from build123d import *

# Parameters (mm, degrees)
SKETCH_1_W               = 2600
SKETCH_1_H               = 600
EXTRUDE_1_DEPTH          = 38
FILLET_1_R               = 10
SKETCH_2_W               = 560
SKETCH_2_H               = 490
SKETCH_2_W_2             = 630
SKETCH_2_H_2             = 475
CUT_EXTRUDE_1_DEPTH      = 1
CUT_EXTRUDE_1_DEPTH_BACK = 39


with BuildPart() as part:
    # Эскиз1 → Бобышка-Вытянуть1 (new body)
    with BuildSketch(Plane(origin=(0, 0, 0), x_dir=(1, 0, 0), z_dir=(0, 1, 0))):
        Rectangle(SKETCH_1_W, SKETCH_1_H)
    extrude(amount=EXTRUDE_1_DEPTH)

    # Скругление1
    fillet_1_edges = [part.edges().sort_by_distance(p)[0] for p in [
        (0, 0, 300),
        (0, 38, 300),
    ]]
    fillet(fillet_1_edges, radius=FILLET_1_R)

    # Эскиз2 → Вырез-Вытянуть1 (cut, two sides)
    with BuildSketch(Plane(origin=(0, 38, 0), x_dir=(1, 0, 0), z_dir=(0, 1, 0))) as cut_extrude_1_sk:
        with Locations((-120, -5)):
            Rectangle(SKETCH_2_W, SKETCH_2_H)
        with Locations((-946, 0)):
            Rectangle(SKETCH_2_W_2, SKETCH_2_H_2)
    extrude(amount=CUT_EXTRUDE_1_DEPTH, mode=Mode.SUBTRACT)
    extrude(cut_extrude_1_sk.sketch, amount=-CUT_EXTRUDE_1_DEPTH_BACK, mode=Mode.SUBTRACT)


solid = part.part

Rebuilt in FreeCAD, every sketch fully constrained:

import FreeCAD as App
import Part
import Sketcher
Q = App.Units.Quantity


def edges_at(feature, points):
    """Names of the edges that pass closest to the given points."""
    edges = feature.Shape.Edges
    near = lambda p: min(range(len(edges)), key=lambda i: edges[i].distToShape(Part.Vertex(*p))[0])
    return sorted({f"Edge{near(p) + 1}" for p in points})


def add_polygon(sketch, points):
    """Adds a closed chain of lines whose ends are joined by coincident constraints."""
    first, n = sketch.GeometryCount, len(points)
    for a, b in zip(points, points[1:] + points[:1]):
        sketch.addGeometry(Part.LineSegment(App.Vector(*a, 0), App.Vector(*b, 0)), False)
    for i in range(n):
        sketch.addConstraint(Sketcher.Constraint("Coincident", first + i, 2, first + (i + 1) % n, 1))

doc = App.newDocument("Part")
body = doc.addObject("PartDesign::Body", "Body")

sketch1 = body.newObject("Sketcher::SketchObject", "Sketch")
sketch1.AttachmentSupport = (doc.getObject("XZ_Plane"), [""])
sketch1.MapMode = "FlatFace"
add_polygon(sketch1, [(-1300, -300), (-1300, 300), (1300, 300), (1300, -300)])
sketch1.addConstraint(Sketcher.Constraint("Vertical", 0))
sketch1.addConstraint(Sketcher.Constraint("Horizontal", 1))
sketch1.addConstraint(Sketcher.Constraint("Vertical", 2))
sketch1.addConstraint(Sketcher.Constraint("Horizontal", 3))
sketch1.addConstraint(Sketcher.Constraint("Symmetric", 0, 2, 2, 2, -1, 1))
sketch1.addConstraint(Sketcher.Constraint("DistanceX", 1, 1, 1, 2, Q("2600 mm")))
sketch1.addConstraint(Sketcher.Constraint("DistanceY", 0, 1, 0, 2, Q("600 mm")))
pad1 = body.newObject("PartDesign::Pad", "Pad")
pad1.Profile = sketch1
pad1.Length = 38
pad1.Reversed = True
doc.recompute()

fillet = body.newObject("PartDesign::Fillet", "Fillet")
fillet.Base = (pad1, edges_at(pad1, [(0, 0, 300), (0, 38, 300)]))
fillet.Radius = 10

sketch2 = body.newObject("Sketcher::SketchObject", "Sketch001")
sketch2.AttachmentSupport = (doc.getObject("XZ_Plane"), [""])
sketch2.MapMode = "FlatFace"
sketch2.AttachmentOffset = App.Placement(App.Vector(0, 0, -38), App.Rotation())
add_polygon(sketch2, [(-400, -240), (-400, 250), (160, 250), (160, -240)])
add_polygon(sketch2, [(-1261, -238), (-1261, 238), (-631, 238), (-631, -238)])
sketch2.addConstraint(Sketcher.Constraint("Vertical", 0))
sketch2.addConstraint(Sketcher.Constraint("Horizontal", 1))
sketch2.addConstraint(Sketcher.Constraint("Vertical", 2))
sketch2.addConstraint(Sketcher.Constraint("Horizontal", 3))
sketch2.addConstraint(Sketcher.Constraint("Vertical", 4))
sketch2.addConstraint(Sketcher.Constraint("Horizontal", 5))
sketch2.addConstraint(Sketcher.Constraint("Vertical", 6))
sketch2.addConstraint(Sketcher.Constraint("Horizontal", 7))
sketch2.addConstraint(Sketcher.Constraint("DistanceX", 1, 1, 1, 2, Q("560 mm")))
sketch2.addConstraint(Sketcher.Constraint("DistanceX", 5, 1, 5, 2, Q("630 mm")))
sketch2.addConstraint(Sketcher.Constraint("DistanceY", 0, 1, 0, 2, Q("490 mm")))
sketch2.addConstraint(Sketcher.Constraint("DistanceY", 4, 1, 4, 2, Q("475 mm")))
sketch2.addConstraint(Sketcher.Constraint("DistanceX", 0, 2, -1, 1, Q("400 mm")))
sketch2.addConstraint(Sketcher.Constraint("DistanceY", -1, 1, 0, 2, Q("250 mm")))
sketch2.addConstraint(Sketcher.Constraint("DistanceX", 4, 2, -1, 1, Q("1261 mm")))
sketch2.addConstraint(Sketcher.Constraint("DistanceY", -1, 1, 4, 2, Q("237.5 mm")))
pocket1 = body.newObject("PartDesign::Pocket", "Pocket")
pocket1.Profile = sketch2
pocket1.Type = "ThroughAll"
pocket1.Midplane = True

doc.recompute()
